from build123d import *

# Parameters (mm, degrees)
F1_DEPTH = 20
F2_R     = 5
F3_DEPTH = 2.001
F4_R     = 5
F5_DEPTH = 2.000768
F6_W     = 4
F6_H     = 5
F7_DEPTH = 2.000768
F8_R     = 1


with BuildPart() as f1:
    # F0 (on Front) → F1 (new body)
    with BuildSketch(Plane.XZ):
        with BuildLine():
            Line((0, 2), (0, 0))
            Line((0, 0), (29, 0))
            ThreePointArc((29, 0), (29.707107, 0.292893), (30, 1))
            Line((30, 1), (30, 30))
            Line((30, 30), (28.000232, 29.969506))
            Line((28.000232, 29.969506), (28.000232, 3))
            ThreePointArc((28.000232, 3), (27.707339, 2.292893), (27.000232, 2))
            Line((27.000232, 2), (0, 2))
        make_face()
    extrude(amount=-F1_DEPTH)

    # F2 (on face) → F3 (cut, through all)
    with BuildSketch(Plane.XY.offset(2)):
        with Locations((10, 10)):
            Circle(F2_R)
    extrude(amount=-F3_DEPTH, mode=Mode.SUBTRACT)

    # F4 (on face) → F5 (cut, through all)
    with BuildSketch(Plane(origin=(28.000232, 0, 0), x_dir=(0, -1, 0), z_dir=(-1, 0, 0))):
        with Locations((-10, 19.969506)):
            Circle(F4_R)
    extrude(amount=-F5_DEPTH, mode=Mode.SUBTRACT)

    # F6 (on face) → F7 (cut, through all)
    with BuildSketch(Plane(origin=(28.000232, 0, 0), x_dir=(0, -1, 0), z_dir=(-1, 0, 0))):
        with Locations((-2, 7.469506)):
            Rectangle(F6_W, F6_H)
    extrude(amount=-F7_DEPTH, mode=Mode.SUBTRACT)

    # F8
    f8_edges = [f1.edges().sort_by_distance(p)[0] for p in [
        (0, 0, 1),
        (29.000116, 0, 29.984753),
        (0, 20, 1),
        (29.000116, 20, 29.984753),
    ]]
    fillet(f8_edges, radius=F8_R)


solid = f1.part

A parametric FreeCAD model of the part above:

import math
import FreeCAD as App
import Part
import Sketcher
from FreeCAD import Vector
Q = App.Units.Quantity


def edges_at(feature, points):
    """Names of the edges that pass closest to the given points."""
    edges = feature.Shape.Edges
    near = lambda p: min(range(len(edges)), key=lambda i: edges[i].distToShape(Part.Vertex(*p))[0])
    return sorted({f"Edge{near(p) + 1}" for p in points})


def add_polygon(sketch, points):
    """Adds a closed chain of lines whose ends are joined by coincident constraints."""
    first, n = sketch.GeometryCount, len(points)
    for a, b in zip(points, points[1:] + points[:1]):
        sketch.addGeometry(Part.LineSegment(App.Vector(*a, 0), App.Vector(*b, 0)), False)
    for i in range(n):
        sketch.addConstraint(Sketcher.Constraint("Coincident", first + i, 2, first + (i + 1) % n, 1))

doc = App.newDocument("Part")
body = doc.addObject("PartDesign::Body", "Body")

sketch1 = body.newObject("Sketcher::SketchObject", "Sketch")
sketch1.AttachmentSupport = (doc.getObject("XZ_Plane"), [""])
sketch1.MapMode = "FlatFace"
sketch1.addGeometry([
    Part.LineSegment(Vector(0, 2, 0), Vector(0, 0, 0)),
    Part.LineSegment(Vector(0, 0, 0), Vector(29, 0, 0)),
    Part.ArcOfCircle(Part.Circle(Vector(29.000001, 0.999999, 0), Vector(0, 0, 1), 0.999999), math.radians(-90.000043), math.radians(0.000043)),
    Part.LineSegment(Vector(30, 1, 0), Vector(30, 30, 0)),
    Part.LineSegment(Vector(30, 30, 0), Vector(28.000232, 29.969506, 0)),
    Part.LineSegment(Vector(28.000232, 29.969506, 0), Vector(28.000232, 3, 0)),
    Part.ArcOfCircle(Part.Circle(Vector(27.000233, 2.999999, 0), Vector(0, 0, 1), 0.999999), math.radians(-90.000043), math.radians(0.000043)),
    Part.LineSegment(Vector(27.000232, 2, 0), Vector(0, 2, 0)),
], False)
sketch1.addConstraint([
    Sketcher.Constraint("Coincident", 0, 2, 1, 1),
    Sketcher.Constraint("Coincident", 1, 2, 2, 1),
    Sketcher.Constraint("Coincident", 2, 2, 3, 1),
    Sketcher.Constraint("Coincident", 3, 2, 4, 1),
    Sketcher.Constraint("Coincident", 4, 2, 5, 1),
    Sketcher.Constraint("Coincident", 5, 2, 6, 2),
    Sketcher.Constraint("Coincident", 6, 1, 7, 1),
    Sketcher.Constraint("Coincident", 7, 2, 0, 1),
    Sketcher.Constraint("Vertical", 0),
    Sketcher.Constraint("Horizontal", 1),
    Sketcher.Constraint("Vertical", 3),
    Sketcher.Constraint("Vertical", 5),
    Sketcher.Constraint("Horizontal", 7),
    Sketcher.Constraint("Coincident", 0, 2, -1, 1),
    Sketcher.Constraint("Radius", 2, Q("0.999999 mm")),
    Sketcher.Constraint("Radius", 6, Q("0.999999 mm")),
    Sketcher.Constraint("DistanceX", 1, 1, 1, 2, Q("29 mm")),
    Sketcher.Constraint("DistanceY", 0, 2, 0, 1, Q("2 mm")),
    Sketcher.Constraint("DistanceY", 3, 1, 3, 2, Q("29 mm")),
    Sketcher.Constraint("Distance", 4, Q("2 mm")),
    Sketcher.Constraint("DistanceX", -1, 1, 2, 3, Q("29.000001 mm")),
    Sketcher.Constraint("DistanceY", -1, 1, 2, 2, Q("1 mm")),
    Sketcher.Constraint("DistanceY", -1, 1, 5, 2, Q("3 mm")),
    Sketcher.Constraint("DistanceX", 6, 1, 5, 2, Q("1 mm")),
    Sketcher.Constraint("DistanceX", 7, 2, 7, 1, Q("27.000232 mm")),
])
pad1 = body.newObject("PartDesign::Pad", "Pad")
pad1.Profile = sketch1
pad1.Length = 20
pad1.Reversed = True

sketch2 = body.newObject("Sketcher::SketchObject", "Sketch001")
sketch2.AttachmentSupport = (doc.getObject("XY_Plane"), [""])
sketch2.MapMode = "FlatFace"
sketch2.AttachmentOffset = App.Placement(Vector(0, 0, 2), App.Rotation())
sketch2.addGeometry(Part.Circle(Vector(10, 10, 0), Vector(0, 0, 1), 5), False)
sketch2.addConstraint([
    Sketcher.Constraint("Diameter", 0, Q("10 mm")),
    Sketcher.Constraint("DistanceX", -1, 1, 0, 3, Q("10 mm")),
    Sketcher.Constraint("DistanceY", -1, 1, 0, 3, Q("10 mm")),
])
pocket1 = body.newObject("PartDesign::Pocket", "Pocket")
pocket1.Profile = sketch2
pocket1.Type = "ThroughAll"

sketch3 = body.newObject("Sketcher::SketchObject", "Sketch002")
sketch3.AttachmentSupport = (doc.getObject("YZ_Plane"), [""])
sketch3.MapMode = "FlatFace"
sketch3.AttachmentOffset = App.Placement(Vector(0, 0, 28.000232), App.Rotation())
sketch3.addGeometry(Part.Circle(Vector(10, 19.969506, 0), Vector(0, 0, 1), 5), False)
sketch3.addConstraint([
    Sketcher.Constraint("Diameter", 0, Q("10 mm")),
    Sketcher.Constraint("DistanceX", -1, 1, 0, 3, Q("10 mm")),
    Sketcher.Constraint("DistanceY", -1, 1, 0, 3, Q("19.969506 mm")),
])
pocket2 = body.newObject("PartDesign::Pocket", "Pocket001")
pocket2.Profile = sketch3
pocket2.Type = "ThroughAll"
pocket2.Reversed = True

sketch4 = body.newObject("Sketcher::SketchObject", "Sketch003")
sketch4.AttachmentSupport = (doc.getObject("YZ_Plane"), [""])
sketch4.MapMode = "FlatFace"
sketch4.AttachmentOffset = App.Placement(Vector(0, 0, 28.000232), App.Rotation())
add_polygon(sketch4, [(4, 9.969506), (4, 4.969506), (0, 4.969506), (0, 9.969506)])
sketch4.addConstraint([
    Sketcher.Constraint("Vertical", 0),
    Sketcher.Constraint("Horizontal", 1),
    Sketcher.Constraint("Vertical", 2),
    Sketcher.Constraint("Horizontal", 3),
    Sketcher.Constraint("PointOnObject", 1, 2, -2),
    Sketcher.Constraint("DistanceX", 1, 2, 1, 1, Q("4 mm")),
    Sketcher.Constraint("DistanceY", 0, 2, 0, 1, Q("5 mm")),
    Sketcher.Constraint("DistanceY", -1, 1, 0, 2, Q("4.969506 mm")),
])
pocket3 = body.newObject("PartDesign::Pocket", "Pocket002")
pocket3.Profile = sketch4
pocket3.Type = "ThroughAll"
pocket3.Reversed = True
doc.recompute()

fillet = body.newObject("PartDesign::Fillet", "Fillet")
fillet.Base = (pocket3, edges_at(pocket3, [
    (0, 0, 1),
    (29, 0, 29.985),
    (0, 20, 1),
    (29, 20, 29.985),
]))
fillet.Radius = 1

doc.recompute()
